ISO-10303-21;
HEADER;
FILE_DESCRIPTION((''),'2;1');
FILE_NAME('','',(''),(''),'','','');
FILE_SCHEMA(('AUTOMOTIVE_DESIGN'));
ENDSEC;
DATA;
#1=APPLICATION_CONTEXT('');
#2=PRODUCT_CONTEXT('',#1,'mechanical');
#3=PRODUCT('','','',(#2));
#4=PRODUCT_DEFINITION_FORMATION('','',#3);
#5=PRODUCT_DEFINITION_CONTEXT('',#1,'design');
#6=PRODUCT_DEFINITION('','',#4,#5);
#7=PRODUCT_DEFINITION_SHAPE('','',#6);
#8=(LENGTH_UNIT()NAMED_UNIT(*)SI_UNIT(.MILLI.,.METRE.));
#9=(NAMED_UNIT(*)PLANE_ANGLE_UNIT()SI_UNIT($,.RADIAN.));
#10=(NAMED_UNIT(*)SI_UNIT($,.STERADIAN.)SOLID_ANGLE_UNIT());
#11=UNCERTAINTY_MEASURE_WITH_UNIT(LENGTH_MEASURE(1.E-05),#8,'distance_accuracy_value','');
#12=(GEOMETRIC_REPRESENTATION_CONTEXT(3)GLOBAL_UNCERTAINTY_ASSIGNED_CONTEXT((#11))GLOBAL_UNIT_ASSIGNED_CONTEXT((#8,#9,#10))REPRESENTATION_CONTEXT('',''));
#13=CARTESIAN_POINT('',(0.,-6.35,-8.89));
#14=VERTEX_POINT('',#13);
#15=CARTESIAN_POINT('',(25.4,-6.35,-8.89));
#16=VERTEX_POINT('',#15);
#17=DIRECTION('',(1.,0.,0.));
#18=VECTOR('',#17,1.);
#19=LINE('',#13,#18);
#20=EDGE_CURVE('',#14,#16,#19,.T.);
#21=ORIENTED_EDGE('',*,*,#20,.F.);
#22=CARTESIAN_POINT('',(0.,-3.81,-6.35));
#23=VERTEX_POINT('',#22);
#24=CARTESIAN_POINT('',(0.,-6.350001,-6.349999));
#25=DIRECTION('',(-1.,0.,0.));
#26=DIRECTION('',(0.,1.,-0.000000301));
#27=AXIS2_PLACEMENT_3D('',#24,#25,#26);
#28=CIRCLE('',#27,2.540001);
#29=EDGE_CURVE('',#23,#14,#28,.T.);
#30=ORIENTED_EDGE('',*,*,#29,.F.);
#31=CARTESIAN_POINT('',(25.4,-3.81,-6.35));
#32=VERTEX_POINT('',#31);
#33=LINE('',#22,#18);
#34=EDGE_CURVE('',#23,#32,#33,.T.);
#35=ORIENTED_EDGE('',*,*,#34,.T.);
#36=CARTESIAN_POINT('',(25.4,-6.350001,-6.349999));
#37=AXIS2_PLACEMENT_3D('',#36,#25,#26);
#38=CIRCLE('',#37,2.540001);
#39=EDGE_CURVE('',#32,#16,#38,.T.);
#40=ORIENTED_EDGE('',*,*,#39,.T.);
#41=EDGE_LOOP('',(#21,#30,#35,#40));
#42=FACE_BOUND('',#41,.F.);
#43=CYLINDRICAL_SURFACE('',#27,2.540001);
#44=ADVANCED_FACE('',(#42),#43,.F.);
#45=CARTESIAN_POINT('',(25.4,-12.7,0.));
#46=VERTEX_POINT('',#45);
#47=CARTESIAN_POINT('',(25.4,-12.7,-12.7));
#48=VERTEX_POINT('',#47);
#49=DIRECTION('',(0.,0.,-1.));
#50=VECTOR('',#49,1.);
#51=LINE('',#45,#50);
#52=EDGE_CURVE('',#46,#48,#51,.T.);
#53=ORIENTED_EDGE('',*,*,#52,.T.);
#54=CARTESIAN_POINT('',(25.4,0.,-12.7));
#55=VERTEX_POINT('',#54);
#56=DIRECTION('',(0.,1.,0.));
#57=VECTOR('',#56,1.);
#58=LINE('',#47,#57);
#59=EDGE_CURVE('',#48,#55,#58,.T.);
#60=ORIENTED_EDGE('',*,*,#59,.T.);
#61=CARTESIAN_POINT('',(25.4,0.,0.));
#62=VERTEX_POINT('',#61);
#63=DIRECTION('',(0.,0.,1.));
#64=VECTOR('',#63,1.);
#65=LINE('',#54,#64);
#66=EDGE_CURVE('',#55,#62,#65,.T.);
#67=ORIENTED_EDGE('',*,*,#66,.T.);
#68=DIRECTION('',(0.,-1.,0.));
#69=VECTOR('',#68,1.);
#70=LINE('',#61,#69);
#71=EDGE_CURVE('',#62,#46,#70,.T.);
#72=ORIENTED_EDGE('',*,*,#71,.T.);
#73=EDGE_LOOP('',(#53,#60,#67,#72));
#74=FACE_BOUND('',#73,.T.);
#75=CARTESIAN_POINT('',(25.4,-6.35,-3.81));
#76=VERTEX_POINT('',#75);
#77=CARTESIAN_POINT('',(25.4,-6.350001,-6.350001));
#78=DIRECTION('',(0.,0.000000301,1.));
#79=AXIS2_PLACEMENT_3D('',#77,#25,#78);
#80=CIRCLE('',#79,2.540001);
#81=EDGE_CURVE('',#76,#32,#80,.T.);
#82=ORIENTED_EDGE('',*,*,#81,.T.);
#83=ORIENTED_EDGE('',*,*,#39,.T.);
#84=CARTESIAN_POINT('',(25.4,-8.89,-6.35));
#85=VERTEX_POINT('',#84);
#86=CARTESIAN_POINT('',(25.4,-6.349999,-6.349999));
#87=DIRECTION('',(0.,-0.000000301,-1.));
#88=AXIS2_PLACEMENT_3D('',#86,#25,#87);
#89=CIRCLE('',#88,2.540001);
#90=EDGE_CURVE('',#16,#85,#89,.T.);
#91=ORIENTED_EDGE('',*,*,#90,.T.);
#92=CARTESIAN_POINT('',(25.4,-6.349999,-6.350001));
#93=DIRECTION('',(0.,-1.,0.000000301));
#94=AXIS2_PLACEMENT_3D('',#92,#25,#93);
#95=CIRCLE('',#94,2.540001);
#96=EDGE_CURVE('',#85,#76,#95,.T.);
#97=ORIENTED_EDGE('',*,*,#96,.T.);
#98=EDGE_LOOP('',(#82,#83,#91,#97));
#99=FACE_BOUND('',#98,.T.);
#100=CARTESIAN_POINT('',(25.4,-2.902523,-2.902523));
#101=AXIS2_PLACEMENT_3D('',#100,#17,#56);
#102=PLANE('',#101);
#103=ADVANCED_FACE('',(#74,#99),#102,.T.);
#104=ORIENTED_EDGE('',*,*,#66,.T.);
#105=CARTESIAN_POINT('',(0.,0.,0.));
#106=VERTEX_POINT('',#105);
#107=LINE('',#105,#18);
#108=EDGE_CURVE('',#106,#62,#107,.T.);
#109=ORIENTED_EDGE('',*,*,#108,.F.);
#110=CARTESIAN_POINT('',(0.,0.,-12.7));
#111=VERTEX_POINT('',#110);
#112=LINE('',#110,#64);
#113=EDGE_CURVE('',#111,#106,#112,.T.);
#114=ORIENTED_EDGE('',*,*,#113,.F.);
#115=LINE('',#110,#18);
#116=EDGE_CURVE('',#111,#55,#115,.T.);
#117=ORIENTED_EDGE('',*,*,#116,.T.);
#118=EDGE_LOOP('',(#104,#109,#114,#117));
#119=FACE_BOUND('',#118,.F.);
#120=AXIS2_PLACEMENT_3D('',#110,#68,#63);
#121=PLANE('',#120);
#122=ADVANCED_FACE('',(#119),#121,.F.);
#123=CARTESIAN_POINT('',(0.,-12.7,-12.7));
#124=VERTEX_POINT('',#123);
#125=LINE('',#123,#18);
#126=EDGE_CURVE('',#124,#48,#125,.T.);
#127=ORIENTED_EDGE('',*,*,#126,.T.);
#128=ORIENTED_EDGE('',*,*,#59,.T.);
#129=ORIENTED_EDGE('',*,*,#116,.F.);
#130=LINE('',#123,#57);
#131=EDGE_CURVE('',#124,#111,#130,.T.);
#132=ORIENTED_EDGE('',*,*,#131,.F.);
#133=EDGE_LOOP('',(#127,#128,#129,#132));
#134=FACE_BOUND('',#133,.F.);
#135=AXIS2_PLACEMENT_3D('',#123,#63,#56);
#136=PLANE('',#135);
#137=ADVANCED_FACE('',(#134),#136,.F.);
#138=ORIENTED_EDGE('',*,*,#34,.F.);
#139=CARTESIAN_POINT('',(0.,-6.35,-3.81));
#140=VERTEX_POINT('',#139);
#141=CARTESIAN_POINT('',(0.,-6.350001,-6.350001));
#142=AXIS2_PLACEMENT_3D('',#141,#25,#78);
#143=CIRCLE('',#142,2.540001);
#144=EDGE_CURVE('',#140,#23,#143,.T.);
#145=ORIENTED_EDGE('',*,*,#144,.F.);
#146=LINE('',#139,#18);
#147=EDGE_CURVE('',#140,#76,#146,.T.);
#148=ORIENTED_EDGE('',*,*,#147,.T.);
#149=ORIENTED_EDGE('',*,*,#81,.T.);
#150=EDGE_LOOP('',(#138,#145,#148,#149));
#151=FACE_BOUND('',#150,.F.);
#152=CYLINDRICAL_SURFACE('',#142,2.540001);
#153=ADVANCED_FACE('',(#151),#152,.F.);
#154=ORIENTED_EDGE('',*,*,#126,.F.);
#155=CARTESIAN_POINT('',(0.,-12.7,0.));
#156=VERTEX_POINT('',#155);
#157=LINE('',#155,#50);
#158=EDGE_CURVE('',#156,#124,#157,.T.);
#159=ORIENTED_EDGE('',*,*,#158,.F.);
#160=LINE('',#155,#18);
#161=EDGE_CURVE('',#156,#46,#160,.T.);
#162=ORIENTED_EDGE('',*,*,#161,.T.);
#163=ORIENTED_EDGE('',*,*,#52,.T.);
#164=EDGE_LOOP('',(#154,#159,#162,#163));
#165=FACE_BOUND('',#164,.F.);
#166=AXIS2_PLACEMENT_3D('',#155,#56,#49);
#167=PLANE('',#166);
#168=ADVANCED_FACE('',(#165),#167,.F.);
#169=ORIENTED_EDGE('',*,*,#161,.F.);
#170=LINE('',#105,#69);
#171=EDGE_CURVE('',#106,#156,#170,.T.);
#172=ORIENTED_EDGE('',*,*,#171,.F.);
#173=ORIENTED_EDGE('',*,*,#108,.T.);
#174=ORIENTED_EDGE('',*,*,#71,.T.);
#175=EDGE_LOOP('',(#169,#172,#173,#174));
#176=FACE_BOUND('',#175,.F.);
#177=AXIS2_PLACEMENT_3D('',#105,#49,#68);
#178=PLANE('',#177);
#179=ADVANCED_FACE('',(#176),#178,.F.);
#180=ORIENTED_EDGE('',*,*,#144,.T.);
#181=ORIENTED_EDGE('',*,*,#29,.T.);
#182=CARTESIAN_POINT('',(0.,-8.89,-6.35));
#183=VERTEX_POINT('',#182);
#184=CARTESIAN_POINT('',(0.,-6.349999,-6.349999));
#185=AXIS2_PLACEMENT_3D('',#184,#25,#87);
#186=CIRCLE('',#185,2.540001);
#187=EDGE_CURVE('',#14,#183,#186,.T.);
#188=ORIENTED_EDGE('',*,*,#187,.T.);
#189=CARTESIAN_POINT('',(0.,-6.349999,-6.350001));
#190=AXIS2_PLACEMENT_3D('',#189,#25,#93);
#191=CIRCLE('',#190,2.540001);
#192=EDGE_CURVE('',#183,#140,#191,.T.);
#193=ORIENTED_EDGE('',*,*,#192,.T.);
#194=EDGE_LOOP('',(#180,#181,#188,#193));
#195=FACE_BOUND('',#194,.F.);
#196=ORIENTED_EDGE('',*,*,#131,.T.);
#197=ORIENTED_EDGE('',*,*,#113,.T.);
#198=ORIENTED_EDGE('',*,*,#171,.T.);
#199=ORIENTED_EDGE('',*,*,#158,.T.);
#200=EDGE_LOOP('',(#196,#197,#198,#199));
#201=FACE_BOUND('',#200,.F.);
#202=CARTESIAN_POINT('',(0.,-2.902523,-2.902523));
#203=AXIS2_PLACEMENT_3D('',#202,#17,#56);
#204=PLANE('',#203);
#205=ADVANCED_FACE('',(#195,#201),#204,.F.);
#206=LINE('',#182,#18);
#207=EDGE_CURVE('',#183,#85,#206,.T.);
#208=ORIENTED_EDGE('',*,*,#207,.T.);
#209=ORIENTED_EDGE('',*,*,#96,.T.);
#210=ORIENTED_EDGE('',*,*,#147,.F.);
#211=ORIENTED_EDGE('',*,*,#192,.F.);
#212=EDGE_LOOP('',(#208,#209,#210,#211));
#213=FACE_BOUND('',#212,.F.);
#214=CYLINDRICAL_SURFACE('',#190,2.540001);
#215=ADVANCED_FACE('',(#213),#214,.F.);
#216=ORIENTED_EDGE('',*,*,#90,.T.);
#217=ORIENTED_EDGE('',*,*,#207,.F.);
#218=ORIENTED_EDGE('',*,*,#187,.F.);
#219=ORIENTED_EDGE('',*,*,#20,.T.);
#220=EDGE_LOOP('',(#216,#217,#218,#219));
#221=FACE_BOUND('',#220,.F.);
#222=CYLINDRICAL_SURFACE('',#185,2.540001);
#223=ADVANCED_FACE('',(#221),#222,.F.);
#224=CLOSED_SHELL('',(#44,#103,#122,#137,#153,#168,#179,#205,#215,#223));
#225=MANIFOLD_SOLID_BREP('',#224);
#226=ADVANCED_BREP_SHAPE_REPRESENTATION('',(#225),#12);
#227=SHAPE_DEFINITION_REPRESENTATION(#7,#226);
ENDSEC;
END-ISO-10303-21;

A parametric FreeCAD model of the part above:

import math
import FreeCAD as App
import Part
import Sketcher
from FreeCAD import Vector
Q = App.Units.Quantity

doc = App.newDocument("Part")
params = doc.addObject("Spreadsheet::Sheet", "Params")
for row, (alias, value) in enumerate([
    ("sketch1_radius", "0.1 in"),
    ("sketch1_width", "0.5 in"),
    ("pad1_length", "1 in"),
], start=1):
    params.set(f"A{row}", alias)
    params.set(f"B{row}", "=" + value)
    params.setAlias(f"B{row}", alias)

body = doc.addObject("PartDesign::Body", "Body")

sketch1 = body.newObject("Sketcher::SketchObject", "Sketch")
sketch1.AttachmentSupport = (doc.getObject("YZ_Plane"), [""])
sketch1.MapMode = "FlatFace"
sketch1.addGeometry([
    Part.LineSegment(Vector(0, 0, 0), Vector(-12.7, 0, 0)),
    Part.LineSegment(Vector(-12.7, 0, 0), Vector(-12.7, -12.7, 0)),
    Part.LineSegment(Vector(-12.7, -12.7, 0), Vector(0, -12.7, 0)),
    Part.LineSegment(Vector(0, -12.7, 0), Vector(0, 0, 0)),
    Part.ArcOfCircle(Part.Circle(Vector(-6.3, -6.3, 0), Vector(0, 0, 1), 2.5), math.radians(-180), math.radians(-90)),
    Part.ArcOfCircle(Part.Circle(Vector(-6.3, -6.4, 0), Vector(0, 0, 1), 2.5), math.radians(90), math.radians(180)),
    Part.ArcOfCircle(Part.Circle(Vector(-6.4, -6.4, 0), Vector(0, 0, 1), 2.5), math.radians(0), math.radians(90)),
    Part.ArcOfCircle(Part.Circle(Vector(-6.4, -6.3, 0), Vector(0, 0, 1), 2.5), math.radians(-90), math.radians(0)),
], False)
sketch1.addConstraint([
    Sketcher.Constraint("Coincident", 0, 2, 1, 1),
    Sketcher.Constraint("Coincident", 1, 2, 2, 1),
    Sketcher.Constraint("Coincident", 2, 2, 3, 1),
    Sketcher.Constraint("Coincident", 3, 2, 0, 1),
    Sketcher.Constraint("Tangent", 4, 1, 5, 2),
    Sketcher.Constraint("Tangent", 5, 1, 6, 2),
    Sketcher.Constraint("Tangent", 6, 1, 7, 2),
    Sketcher.Constraint("Tangent", 7, 1, 4, 2),
    Sketcher.Constraint("Horizontal", 0),
    Sketcher.Constraint("Vertical", 1),
    Sketcher.Constraint("Horizontal", 2),
    Sketcher.Constraint("Vertical", 3),
    Sketcher.Constraint("Coincident", 3, 2, -1, 1),
    Sketcher.Constraint("Equal", 4, 5),
    Sketcher.Constraint("Horizontal", 7, 3, 4, 1),
    Sketcher.Constraint("Horizontal", 4, 1, 6, 1),
    Sketcher.Constraint("Vertical", 7, 3, 5, 1),
    Sketcher.Constraint("Vertical", 5, 1, 7, 1),
    Sketcher.Constraint("Equal", 2, 1),
    Sketcher.Constraint("Radius", 4, Q("0.1 in")),
    Sketcher.Constraint("DistanceX", 0, 2, 0, 1, Q("0.5 in")),
    Sketcher.Constraint("DistanceX", 4, 3, -1, 1, Q("0.25 in")),
    Sketcher.Constraint("DistanceY", 4, 3, -1, 1, Q("0.25 in")),
])
sketch1.setExpression("Constraints[19]", "Params.sketch1_radius")
sketch1.setExpression("Constraints[20]", "Params.sketch1_width")
pad1 = body.newObject("PartDesign::Pad", "Pad")
pad1.Profile = sketch1
pad1.setExpression("Length", "Params.pad1_length")

doc.recompute()
